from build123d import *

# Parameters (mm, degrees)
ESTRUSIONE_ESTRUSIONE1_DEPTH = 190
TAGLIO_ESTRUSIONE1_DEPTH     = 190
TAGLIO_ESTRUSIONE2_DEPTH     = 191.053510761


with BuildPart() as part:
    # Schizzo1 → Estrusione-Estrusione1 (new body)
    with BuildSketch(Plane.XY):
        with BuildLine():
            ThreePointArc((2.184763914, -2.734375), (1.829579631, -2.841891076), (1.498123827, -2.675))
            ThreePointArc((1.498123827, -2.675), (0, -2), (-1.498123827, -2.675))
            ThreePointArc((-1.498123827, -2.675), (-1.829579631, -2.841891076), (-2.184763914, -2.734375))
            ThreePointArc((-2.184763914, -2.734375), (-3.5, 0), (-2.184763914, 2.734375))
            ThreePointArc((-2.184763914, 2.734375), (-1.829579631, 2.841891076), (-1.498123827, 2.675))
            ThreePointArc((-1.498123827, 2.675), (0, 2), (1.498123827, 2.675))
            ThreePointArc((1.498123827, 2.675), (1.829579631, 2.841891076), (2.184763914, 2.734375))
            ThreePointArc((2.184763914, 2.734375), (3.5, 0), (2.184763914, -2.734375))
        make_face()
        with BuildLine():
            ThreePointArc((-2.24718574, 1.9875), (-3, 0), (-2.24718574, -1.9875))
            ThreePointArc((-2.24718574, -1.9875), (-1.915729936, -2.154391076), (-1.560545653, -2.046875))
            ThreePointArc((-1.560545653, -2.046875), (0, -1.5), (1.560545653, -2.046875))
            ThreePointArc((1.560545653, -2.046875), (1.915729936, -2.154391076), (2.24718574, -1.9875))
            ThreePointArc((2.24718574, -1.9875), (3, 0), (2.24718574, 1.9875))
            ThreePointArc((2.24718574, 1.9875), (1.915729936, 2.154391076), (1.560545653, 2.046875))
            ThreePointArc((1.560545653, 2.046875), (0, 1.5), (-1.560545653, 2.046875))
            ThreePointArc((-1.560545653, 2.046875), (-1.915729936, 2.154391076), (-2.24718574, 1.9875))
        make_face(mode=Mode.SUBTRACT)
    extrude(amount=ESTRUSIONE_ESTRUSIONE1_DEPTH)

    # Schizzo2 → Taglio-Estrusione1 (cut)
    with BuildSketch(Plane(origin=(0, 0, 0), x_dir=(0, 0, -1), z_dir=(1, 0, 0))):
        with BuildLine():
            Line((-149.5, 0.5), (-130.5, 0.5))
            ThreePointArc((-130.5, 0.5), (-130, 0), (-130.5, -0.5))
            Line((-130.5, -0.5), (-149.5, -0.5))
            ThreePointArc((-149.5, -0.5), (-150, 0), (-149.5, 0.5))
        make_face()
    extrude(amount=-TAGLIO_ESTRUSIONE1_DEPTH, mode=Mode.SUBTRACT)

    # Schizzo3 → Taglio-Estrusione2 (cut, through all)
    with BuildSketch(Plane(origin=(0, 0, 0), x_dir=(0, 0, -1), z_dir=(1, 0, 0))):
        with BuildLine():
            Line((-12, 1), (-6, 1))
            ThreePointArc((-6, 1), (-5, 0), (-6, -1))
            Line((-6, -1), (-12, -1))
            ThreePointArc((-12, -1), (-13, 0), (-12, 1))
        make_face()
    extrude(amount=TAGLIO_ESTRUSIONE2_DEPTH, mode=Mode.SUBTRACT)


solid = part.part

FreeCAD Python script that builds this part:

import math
import FreeCAD as App
import Part
import Sketcher
from FreeCAD import Vector

doc = App.newDocument("Part")
body = doc.addObject("PartDesign::Body", "Body")

sketch1 = body.newObject("Sketcher::SketchObject", "Sketch")
sketch1.AttachmentSupport = (doc.getObject("XY_Plane"), [""])
sketch1.MapMode = "FlatFace"
sketch1.addGeometry(Part.ArcOfCircle(Part.Circle(Vector(1.872655, -2.34375, 0), Vector(0, 0, 1), 0.5), math.radians(-138.509183), math.radians(-51.375167)), False)
sketch1.addGeometry(Part.ArcOfCircle(Part.Circle(Vector(0, 0, 0), Vector(0, 0, 1), 3.5), math.radians(-51.375167), math.radians(51.375167)), False)
sketch1.addGeometry(Part.ArcOfCircle(Part.Circle(Vector(1.872655, 2.34375, 0), Vector(0, 0, 1), 0.5), math.radians(51.375167), math.radians(138.509183)), False)
sketch1.addGeometry(Part.ArcOfCircle(Part.Circle(Vector(0, 4, 0), Vector(0, 0, 1), 2), math.radians(-138.509183), math.radians(-41.490817)), False)
sketch1.addGeometry(Part.ArcOfCircle(Part.Circle(Vector(-1.872655, 2.34375, 0), Vector(0, 0, 1), 0.5), math.radians(41.490817), math.radians(128.624833)), False)
sketch1.addGeometry(Part.ArcOfCircle(Part.Circle(Vector(0, 0, 0), Vector(0, 0, 1), 3.5), math.radians(128.624833), math.radians(231.375167)), False)
sketch1.addGeometry(Part.ArcOfCircle(Part.Circle(Vector(-1.872655, -2.34375, 0), Vector(0, 0, 1), 0.5), math.radians(-128.624833), math.radians(-41.490817)), False)
sketch1.addGeometry(Part.ArcOfCircle(Part.Circle(Vector(0, -4, 0), Vector(0, 0, 1), 2), math.radians(41.490817), math.radians(138.509183)), False)
sketch1.addGeometry(Part.ArcOfCircle(Part.Circle(Vector(-1.872655, 1.65625, 0), Vector(0, 0, 1), 0.5), math.radians(51.375167), math.radians(138.509183)), False)
sketch1.addGeometry(Part.ArcOfCircle(Part.Circle(Vector(0, 4, 0), Vector(0, 0, 1), 2.5), math.radians(-128.624833), math.radians(-51.375167)), False)
sketch1.addGeometry(Part.ArcOfCircle(Part.Circle(Vector(1.872655, 1.65625, 0), Vector(0, 0, 1), 0.5), math.radians(41.490817), math.radians(128.624833)), False)
sketch1.addGeometry(Part.ArcOfCircle(Part.Circle(Vector(0, 0, 0), Vector(0, 0, 1), 3), math.radians(-41.490817), math.radians(41.490817)), False)
sketch1.addGeometry(Part.ArcOfCircle(Part.Circle(Vector(1.872655, -1.65625, 0), Vector(0, 0, 1), 0.5), math.radians(-128.624833), math.radians(-41.490817)), False)
sketch1.addGeometry(Part.ArcOfCircle(Part.Circle(Vector(0, -4, 0), Vector(0, 0, 1), 2.5), math.radians(51.375167), math.radians(128.624833)), False)
sketch1.addGeometry(Part.ArcOfCircle(Part.Circle(Vector(-1.872655, -1.65625, 0), Vector(0, 0, 1), 0.5), math.radians(-138.509183), math.radians(-51.375167)), False)
sketch1.addGeometry(Part.ArcOfCircle(Part.Circle(Vector(0, 0, 0), Vector(0, 0, 1), 3), math.radians(138.509183), math.radians(221.490817)), False)
sketch1.addConstraint(Sketcher.Constraint("Tangent", 0, 2, 1, 1))
sketch1.addConstraint(Sketcher.Constraint("Tangent", 1, 2, 2, 1))
sketch1.addConstraint(Sketcher.Constraint("Tangent", 2, 2, 3, 2))
sketch1.addConstraint(Sketcher.Constraint("Tangent", 3, 1, 4, 1))
sketch1.addConstraint(Sketcher.Constraint("Tangent", 4, 2, 5, 1))
sketch1.addConstraint(Sketcher.Constraint("Tangent", 5, 2, 6, 1))
sketch1.addConstraint(Sketcher.Constraint("Tangent", 6, 2, 7, 2))
sketch1.addConstraint(Sketcher.Constraint("Tangent", 7, 1, 0, 1))
sketch1.addConstraint(Sketcher.Constraint("Tangent", 8, 1, 9, 1))
sketch1.addConstraint(Sketcher.Constraint("Tangent", 9, 2, 10, 2))
sketch1.addConstraint(Sketcher.Constraint("Tangent", 10, 1, 11, 2))
sketch1.addConstraint(Sketcher.Constraint("Tangent", 11, 1, 12, 2))
sketch1.addConstraint(Sketcher.Constraint("Tangent", 12, 1, 13, 1))
sketch1.addConstraint(Sketcher.Constraint("Tangent", 13, 2, 14, 2))
sketch1.addConstraint(Sketcher.Constraint("Tangent", 14, 1, 15, 2))
sketch1.addConstraint(Sketcher.Constraint("Tangent", 15, 1, 8, 2))
sketch1.addConstraint(Sketcher.Constraint("Coincident", 1, 3, -1, 1))
sketch1.addConstraint(Sketcher.Constraint("Coincident", 5, 3, -1, 1))
sketch1.addConstraint(Sketcher.Constraint("Coincident", 11, 3, -1, 1))
sketch1.addConstraint(Sketcher.Constraint("Coincident", 15, 3, -1, 1))
sketch1.addConstraint(Sketcher.Constraint("Coincident", 9, 3, 3, 3))
sketch1.addConstraint(Sketcher.Constraint("Coincident", 13, 3, 7, 3))
sketch1.addConstraint(Sketcher.Constraint("Equal", 0, 2))
sketch1.addConstraint(Sketcher.Constraint("Equal", 2, 4))
sketch1.addConstraint(Sketcher.Constraint("Equal", 1, 5))
sketch1.addConstraint(Sketcher.Constraint("Equal", 4, 6))
sketch1.addConstraint(Sketcher.Constraint("Equal", 3, 7))
sketch1.addConstraint(Sketcher.Constraint("Equal", 6, 8))
sketch1.addConstraint(Sketcher.Constraint("Equal", 8, 10))
sketch1.addConstraint(Sketcher.Constraint("Equal", 10, 12))
sketch1.addConstraint(Sketcher.Constraint("Equal", 9, 13))
sketch1.addConstraint(Sketcher.Constraint("Equal", 12, 14))
sketch1.addConstraint(Sketcher.Constraint("Equal", 11, 15))
sketch1.addConstraint(Sketcher.Constraint("Symmetric", 3, 3, 7, 3, -1, 1))
sketch1.addConstraint(Sketcher.Constraint("PointOnObject", 3, 3, -2))
sketch1.addConstraint(Sketcher.Constraint("Vertical", 6, 3, 8, 3))
sketch1.addConstraint(Sketcher.Constraint("Radius", 3, 2.0))
sketch1.addConstraint(Sketcher.Constraint("Radius", 11, 3.0))
sketch1.addConstraint(Sketcher.Constraint("Radius", 0, 0.5))
sketch1.addConstraint(Sketcher.Constraint("Radius", 1, 3.5))
sketch1.addConstraint(Sketcher.Constraint("DistanceY", -1, 1, 3, 3, 4.0))
pad1 = body.newObject("PartDesign::Pad", "Pad")
pad1.Profile = sketch1
pad1.Length = 190

sketch2 = body.newObject("Sketcher::SketchObject", "Sketch001")
sketch2.AttachmentSupport = (doc.getObject("YZ_Plane"), [""])
sketch2.MapMode = "FlatFace"
sketch2.addGeometry(Part.LineSegment(Vector(0.5, 130.5, 0), Vector(0.5, 149.5, 0)), False)
sketch2.addGeometry(Part.ArcOfCircle(Part.Circle(Vector(0, 149.5, 0), Vector(0, 0, 1), 0.5), math.radians(0), math.radians(180)), False)
sketch2.addGeometry(Part.LineSegment(Vector(-0.5, 149.5, 0), Vector(-0.5, 130.5, 0)), False)
sketch2.addGeometry(Part.ArcOfCircle(Part.Circle(Vector(0, 130.5, 0), Vector(0, 0, 1), 0.5), math.radians(180), math.radians(360)), False)
sketch2.addConstraint(Sketcher.Constraint("Tangent", 0, 2, 1, 1))
sketch2.addConstraint(Sketcher.Constraint("Tangent", 1, 2, 2, 1))
sketch2.addConstraint(Sketcher.Constraint("Tangent", 2, 2, 3, 1))
sketch2.addConstraint(Sketcher.Constraint("Tangent", 3, 2, 0, 1))
sketch2.addConstraint(Sketcher.Constraint("Vertical", 0))
sketch2.addConstraint(Sketcher.Constraint("Vertical", 2))
sketch2.addConstraint(Sketcher.Constraint("PointOnObject", 1, 3, -2))
sketch2.addConstraint(Sketcher.Constraint("Radius", 1, 0.5))
sketch2.addConstraint(Sketcher.Constraint("DistanceY", 0, 1, 0, 2, 19.0))
sketch2.addConstraint(Sketcher.Constraint("DistanceY", -1, 1, 1, 3, 149.5))
pocket1 = body.newObject("PartDesign::Pocket", "Pocket")
pocket1.Profile = sketch2
pocket1.Length = 190

sketch3 = body.newObject("Sketcher::SketchObject", "Sketch002")
sketch3.AttachmentSupport = (doc.getObject("YZ_Plane"), [""])
sketch3.MapMode = "FlatFace"
sketch3.addGeometry(Part.LineSegment(Vector(1, 6, 0), Vector(1, 12, 0)), False)
sketch3.addGeometry(Part.ArcOfCircle(Part.Circle(Vector(0, 12, 0), Vector(0, 0, 1), 1), math.radians(0), math.radians(180)), False)
sketch3.addGeometry(Part.LineSegment(Vector(-1, 12, 0), Vector(-1, 6, 0)), False)
sketch3.addGeometry(Part.ArcOfCircle(Part.Circle(Vector(0, 6, 0), Vector(0, 0, 1), 1), math.radians(180), math.radians(360)), False)
sketch3.addConstraint(Sketcher.Constraint("Tangent", 0, 2, 1, 1))
sketch3.addConstraint(Sketcher.Constraint("Tangent", 1, 2, 2, 1))
sketch3.addConstraint(Sketcher.Constraint("Tangent", 2, 2, 3, 1))
sketch3.addConstraint(Sketcher.Constraint("Tangent", 3, 2, 0, 1))
sketch3.addConstraint(Sketcher.Constraint("Vertical", 0))
sketch3.addConstraint(Sketcher.Constraint("Vertical", 2))
sketch3.addConstraint(Sketcher.Constraint("PointOnObject", 1, 3, -2))
sketch3.addConstraint(Sketcher.Constraint("Radius", 1, 1.0))
sketch3.addConstraint(Sketcher.Constraint("DistanceY", 0, 1, 0, 2, 6.0))
sketch3.addConstraint(Sketcher.Constraint("DistanceY", -1, 1, 1, 3, 12.0))
pocket2 = body.newObject("PartDesign::Pocket", "Pocket001")
pocket2.Profile = sketch3
pocket2.Type = "ThroughAll"
pocket2.Reversed = True

doc.recompute()
